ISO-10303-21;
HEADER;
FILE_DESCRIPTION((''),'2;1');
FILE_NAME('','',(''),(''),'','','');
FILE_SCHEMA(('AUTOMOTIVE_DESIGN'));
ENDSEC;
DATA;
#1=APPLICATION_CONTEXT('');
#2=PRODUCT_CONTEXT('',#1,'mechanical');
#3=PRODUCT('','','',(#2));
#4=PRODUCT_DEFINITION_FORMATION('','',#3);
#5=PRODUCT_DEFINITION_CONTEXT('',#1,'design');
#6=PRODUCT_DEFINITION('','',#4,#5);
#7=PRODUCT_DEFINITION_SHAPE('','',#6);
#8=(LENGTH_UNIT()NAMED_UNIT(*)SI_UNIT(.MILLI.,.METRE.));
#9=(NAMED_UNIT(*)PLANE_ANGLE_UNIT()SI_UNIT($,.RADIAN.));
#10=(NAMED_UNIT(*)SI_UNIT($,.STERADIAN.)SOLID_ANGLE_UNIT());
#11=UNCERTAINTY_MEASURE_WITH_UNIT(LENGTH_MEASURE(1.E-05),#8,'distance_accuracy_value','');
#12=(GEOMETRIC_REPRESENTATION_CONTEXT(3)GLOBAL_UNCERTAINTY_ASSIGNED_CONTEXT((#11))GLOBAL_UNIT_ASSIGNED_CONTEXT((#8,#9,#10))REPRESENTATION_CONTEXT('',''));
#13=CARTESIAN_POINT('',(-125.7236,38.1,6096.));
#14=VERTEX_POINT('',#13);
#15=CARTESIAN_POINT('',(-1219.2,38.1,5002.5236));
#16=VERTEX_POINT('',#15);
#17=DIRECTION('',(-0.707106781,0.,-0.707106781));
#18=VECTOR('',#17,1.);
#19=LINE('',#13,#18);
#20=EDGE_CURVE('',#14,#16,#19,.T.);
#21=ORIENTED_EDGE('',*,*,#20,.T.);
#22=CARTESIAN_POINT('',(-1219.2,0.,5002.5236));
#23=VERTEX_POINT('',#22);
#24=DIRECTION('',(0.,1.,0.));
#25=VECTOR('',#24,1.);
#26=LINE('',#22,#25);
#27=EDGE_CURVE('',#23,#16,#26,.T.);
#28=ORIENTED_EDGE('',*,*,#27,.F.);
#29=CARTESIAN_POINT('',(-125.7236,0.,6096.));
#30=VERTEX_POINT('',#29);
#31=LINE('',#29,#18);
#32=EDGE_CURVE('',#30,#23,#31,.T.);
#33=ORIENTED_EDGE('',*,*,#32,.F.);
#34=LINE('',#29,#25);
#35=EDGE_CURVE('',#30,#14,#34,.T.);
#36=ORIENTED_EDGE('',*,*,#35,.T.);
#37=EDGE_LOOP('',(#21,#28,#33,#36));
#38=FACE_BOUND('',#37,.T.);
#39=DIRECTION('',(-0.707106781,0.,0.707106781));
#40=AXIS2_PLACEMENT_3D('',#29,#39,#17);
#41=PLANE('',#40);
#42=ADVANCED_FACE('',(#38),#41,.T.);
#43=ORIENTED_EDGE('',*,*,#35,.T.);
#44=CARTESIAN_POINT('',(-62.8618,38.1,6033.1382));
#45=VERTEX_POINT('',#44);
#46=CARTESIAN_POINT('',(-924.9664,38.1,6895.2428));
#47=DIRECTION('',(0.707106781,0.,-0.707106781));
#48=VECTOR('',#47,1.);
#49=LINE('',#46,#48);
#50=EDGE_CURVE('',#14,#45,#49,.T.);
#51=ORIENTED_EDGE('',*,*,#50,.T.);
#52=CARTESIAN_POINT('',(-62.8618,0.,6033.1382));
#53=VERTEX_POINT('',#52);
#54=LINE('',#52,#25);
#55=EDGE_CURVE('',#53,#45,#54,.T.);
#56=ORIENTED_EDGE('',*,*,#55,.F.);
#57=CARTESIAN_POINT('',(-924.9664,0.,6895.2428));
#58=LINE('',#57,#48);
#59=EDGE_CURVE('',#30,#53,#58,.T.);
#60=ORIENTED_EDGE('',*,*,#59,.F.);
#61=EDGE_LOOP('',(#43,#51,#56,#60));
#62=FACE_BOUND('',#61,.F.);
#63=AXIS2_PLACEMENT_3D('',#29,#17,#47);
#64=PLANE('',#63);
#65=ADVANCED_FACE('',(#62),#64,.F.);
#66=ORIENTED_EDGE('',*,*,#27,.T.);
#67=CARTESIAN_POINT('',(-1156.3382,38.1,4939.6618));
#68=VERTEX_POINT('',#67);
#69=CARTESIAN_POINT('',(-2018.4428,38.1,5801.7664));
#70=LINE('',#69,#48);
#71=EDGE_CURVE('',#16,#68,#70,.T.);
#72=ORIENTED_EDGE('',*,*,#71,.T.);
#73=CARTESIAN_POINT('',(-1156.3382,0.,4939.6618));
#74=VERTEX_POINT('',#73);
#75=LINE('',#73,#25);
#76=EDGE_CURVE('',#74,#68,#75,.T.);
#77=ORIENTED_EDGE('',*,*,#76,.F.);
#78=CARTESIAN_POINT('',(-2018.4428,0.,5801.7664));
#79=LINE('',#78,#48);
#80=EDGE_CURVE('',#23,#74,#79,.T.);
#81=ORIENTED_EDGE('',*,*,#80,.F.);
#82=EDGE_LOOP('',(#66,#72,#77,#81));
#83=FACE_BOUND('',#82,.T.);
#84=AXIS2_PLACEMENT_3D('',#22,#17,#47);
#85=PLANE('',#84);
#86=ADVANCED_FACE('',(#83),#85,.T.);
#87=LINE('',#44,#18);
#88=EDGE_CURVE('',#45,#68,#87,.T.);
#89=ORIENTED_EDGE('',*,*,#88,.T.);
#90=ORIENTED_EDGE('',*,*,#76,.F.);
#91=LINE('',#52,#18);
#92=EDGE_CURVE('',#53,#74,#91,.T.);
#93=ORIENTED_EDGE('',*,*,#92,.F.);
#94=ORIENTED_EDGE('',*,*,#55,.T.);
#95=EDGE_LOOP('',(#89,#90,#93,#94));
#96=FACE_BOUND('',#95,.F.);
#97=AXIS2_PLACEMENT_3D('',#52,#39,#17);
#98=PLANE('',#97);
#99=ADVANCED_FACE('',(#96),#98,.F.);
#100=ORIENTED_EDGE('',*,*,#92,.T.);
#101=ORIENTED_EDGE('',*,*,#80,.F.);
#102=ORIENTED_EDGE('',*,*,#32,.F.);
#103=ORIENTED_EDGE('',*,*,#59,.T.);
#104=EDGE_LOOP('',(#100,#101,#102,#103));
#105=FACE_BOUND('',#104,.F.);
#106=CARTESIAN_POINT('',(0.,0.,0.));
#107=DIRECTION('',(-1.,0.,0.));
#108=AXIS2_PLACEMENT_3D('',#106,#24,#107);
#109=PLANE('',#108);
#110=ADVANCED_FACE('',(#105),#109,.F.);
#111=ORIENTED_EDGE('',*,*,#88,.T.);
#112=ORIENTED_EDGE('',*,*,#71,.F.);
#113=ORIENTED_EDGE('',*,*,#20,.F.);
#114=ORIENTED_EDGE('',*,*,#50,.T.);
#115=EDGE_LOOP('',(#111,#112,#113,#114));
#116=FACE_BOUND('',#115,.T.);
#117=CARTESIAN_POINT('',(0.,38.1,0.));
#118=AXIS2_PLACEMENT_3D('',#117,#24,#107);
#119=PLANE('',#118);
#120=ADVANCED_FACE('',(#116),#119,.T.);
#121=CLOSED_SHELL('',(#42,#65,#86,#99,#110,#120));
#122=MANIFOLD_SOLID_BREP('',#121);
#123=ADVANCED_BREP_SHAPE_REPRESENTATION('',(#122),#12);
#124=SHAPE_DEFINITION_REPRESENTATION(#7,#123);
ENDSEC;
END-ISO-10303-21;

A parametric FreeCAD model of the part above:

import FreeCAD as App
import Part
import Sketcher
Q = App.Units.Quantity


def add_polygon(sketch, points):
    """Adds a closed chain of lines whose ends are joined by coincident constraints."""
    first, n = sketch.GeometryCount, len(points)
    for a, b in zip(points, points[1:] + points[:1]):
        sketch.addGeometry(Part.LineSegment(App.Vector(*a, 0), App.Vector(*b, 0)), False)
    for i in range(n):
        sketch.addConstraint(Sketcher.Constraint("Coincident", first + i, 2, first + (i + 1) % n, 1))

doc = App.newDocument("Part")
params = doc.addObject("Spreadsheet::Sheet", "Params")
for row, (alias, value) in enumerate([
    ("sketch1_length", "3.5 in"),
    ("pad1_length", "1.5 in"),
], start=1):
    params.set(f"A{row}", alias)
    params.set(f"B{row}", "=" + value)
    params.setAlias(f"B{row}", alias)

body = doc.addObject("PartDesign::Body", "Body")

# Sketch on XZ plane
sketch1 = doc.addObject("Sketcher::SketchObject", "Sketch")
body.addObject(sketch1)
sketch1.AttachmentSupport = (doc.XZ_Plane, [""])
sketch1.MapMode = "FlatFace"
add_polygon(sketch1, [(-63, 6033), (-1156, 4940), (-1219, 5003), (-126, 6096)])  # lines 0-3
sketch1.addConstraint([
    Sketcher.Constraint("Perpendicular", 0, 1),
    Sketcher.Constraint("Perpendicular", 1, 2),
    Sketcher.Constraint("Perpendicular", 2, 3),
    Sketcher.Constraint("DistanceX", 1, 2, -1, 1, Q("48 in")),
    Sketcher.Constraint("Angle", 2, Q("45 deg")),
    Sketcher.Constraint("Distance", 1, Q("3.5 in")),
    Sketcher.Constraint("DistanceY", -1, 1, 2, 2, Q("240 in")),
    Sketcher.Constraint("Distance", 0, 1546.4092),
])
sketch1.setExpression("Constraints[9]", "Params.sketch1_length")
pad1 = doc.addObject("PartDesign::Pad", "Pad")
body.addObject(pad1)
pad1.Profile = sketch1
pad1.setExpression("Length", "Params.pad1_length")
pad1.Reversed = True

doc.recompute()
